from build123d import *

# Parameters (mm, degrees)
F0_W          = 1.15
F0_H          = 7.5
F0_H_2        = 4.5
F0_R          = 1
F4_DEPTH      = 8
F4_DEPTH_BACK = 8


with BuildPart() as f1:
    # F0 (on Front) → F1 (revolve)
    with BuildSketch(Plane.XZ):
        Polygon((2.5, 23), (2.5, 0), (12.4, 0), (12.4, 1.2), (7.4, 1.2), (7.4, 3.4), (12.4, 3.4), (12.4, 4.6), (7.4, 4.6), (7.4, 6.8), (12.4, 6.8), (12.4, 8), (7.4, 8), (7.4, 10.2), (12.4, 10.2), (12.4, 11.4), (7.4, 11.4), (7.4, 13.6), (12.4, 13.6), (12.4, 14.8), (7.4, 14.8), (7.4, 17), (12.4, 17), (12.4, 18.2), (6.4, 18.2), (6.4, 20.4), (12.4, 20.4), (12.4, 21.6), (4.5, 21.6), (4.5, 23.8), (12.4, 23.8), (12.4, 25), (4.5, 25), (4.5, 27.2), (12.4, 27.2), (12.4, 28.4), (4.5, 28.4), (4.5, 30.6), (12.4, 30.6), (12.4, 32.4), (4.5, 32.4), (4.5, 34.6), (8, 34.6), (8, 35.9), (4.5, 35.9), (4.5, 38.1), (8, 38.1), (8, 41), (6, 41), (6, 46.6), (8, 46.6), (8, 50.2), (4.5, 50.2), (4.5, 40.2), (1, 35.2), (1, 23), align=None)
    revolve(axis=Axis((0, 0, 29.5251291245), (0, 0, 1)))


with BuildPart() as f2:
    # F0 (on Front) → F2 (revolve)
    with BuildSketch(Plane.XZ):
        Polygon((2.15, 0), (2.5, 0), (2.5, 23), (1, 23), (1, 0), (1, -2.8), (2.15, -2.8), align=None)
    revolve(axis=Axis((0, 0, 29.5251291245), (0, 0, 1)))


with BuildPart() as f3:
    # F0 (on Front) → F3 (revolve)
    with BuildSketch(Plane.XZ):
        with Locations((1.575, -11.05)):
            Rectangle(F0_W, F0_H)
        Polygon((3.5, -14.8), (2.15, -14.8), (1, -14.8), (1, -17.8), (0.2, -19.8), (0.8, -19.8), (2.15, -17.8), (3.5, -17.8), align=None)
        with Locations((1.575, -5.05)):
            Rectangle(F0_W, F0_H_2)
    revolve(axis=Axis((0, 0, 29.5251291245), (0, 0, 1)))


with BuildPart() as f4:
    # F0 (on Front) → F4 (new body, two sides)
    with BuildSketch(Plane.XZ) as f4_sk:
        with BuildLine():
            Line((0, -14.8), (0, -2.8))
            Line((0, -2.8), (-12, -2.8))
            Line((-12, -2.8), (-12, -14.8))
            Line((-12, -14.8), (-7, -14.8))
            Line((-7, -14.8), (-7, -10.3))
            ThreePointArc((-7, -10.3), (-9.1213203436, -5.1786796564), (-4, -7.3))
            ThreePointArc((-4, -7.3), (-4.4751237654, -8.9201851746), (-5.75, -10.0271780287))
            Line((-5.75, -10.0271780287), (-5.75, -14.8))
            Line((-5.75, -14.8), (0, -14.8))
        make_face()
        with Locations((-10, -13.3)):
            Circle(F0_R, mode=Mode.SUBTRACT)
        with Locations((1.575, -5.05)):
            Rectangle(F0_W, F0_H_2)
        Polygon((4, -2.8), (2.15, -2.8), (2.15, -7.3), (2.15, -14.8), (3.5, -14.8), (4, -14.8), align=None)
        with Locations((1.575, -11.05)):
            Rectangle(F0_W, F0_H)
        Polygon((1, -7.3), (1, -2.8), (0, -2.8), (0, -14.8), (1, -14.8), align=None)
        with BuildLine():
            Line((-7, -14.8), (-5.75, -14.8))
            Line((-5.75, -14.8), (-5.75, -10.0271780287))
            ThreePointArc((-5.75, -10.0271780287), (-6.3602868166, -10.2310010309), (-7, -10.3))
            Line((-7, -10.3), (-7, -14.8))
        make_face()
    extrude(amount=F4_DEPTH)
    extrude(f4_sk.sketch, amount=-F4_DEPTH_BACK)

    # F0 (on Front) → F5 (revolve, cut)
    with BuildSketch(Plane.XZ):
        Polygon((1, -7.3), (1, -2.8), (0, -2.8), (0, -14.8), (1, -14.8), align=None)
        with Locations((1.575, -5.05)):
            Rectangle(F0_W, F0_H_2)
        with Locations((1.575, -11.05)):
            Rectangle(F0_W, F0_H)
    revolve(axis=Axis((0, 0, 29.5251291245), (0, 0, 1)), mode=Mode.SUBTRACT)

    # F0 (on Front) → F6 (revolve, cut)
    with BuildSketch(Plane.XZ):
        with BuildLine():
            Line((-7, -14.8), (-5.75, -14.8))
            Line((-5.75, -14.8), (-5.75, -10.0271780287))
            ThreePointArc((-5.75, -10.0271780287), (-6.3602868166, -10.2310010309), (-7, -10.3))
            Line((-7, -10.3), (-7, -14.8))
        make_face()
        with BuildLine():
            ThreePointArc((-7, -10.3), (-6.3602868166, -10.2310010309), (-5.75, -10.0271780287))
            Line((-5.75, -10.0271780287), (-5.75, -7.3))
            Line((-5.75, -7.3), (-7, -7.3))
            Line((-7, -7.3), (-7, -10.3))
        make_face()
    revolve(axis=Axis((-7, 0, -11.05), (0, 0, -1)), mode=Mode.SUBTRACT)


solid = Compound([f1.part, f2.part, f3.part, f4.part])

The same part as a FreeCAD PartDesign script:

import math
import FreeCAD as App
import Part
import Sketcher

V = App.Vector


def add_polygon(sketch, points):
    """Adds a closed chain of lines whose ends are joined by coincident constraints."""
    first, n = sketch.GeometryCount, len(points)
    for a, b in zip(points, points[1:] + points[:1]):
        sketch.addGeometry(Part.LineSegment(App.Vector(*a, 0), App.Vector(*b, 0)), False)
    for i in range(n):
        sketch.addConstraint(Sketcher.Constraint("Coincident", first + i, 2, first + (i + 1) % n, 1))

doc = App.newDocument("Part")
params = doc.addObject("Spreadsheet::Sheet", "Params")
for row, (alias, value) in enumerate([
    ("sketch1_width", "5 mm"),
    ("sketch1_width2", "6 mm"),
    ("sketch1_width3", "2 mm"),
    ("sketch1_height", "23 mm"),
    ("sketch1_height2", "10 mm"),
    ("revolution_angle", "360 deg"),
    ("sketch2_height", "23 mm"),
    ("sketch2_width", "1.5 mm"),
    ("sketch2_height2", "25.8 mm"),
    ("sketch2_width2", "0.35 mm"),
    ("revolution2_angle", "360 deg"),
    ("sketch3_height", "3 mm"),
    ("sketch3_height2", "12 mm"),
    ("sketch3_width", "0.6 mm"),
    ("sketch3_width2", "1.35 mm"),
    ("sketch3_width3", "1.15 mm"),
    ("revolution3_angle", "360 deg"),
    ("sketch4_diameter", "2 mm"),
    ("sketch4_radius", "3 mm"),
    ("sketch4_width", "16 mm"),
    ("sketch4_height", "12 mm"),
    ("pad1_length", "8 mm"),
    ("pad1_length2", "8 mm"),
    ("sketch5_height", "12 mm"),
    ("sketch5_width", "2.15 mm"),
    ("groove_angle", "360 deg"),
    ("sketch6_height", "7.5 mm"),
    ("sketch6_width", "1.25 mm"),
    ("groove2_angle", "360 deg"),
], start=1):
    params.set(f"A{row}", alias)
    params.set(f"B{row}", "=" + value)
    params.setAlias(f"B{row}", alias)

body = doc.addObject("PartDesign::Body", "Body")

sketch1 = doc.addObject("Sketcher::SketchObject", "Sketch")
body.addObject(sketch1)
sketch1.AttachmentSupport = (doc.XZ_Plane, [""])
sketch1.MapMode = "FlatFace"
add_polygon(sketch1, [(2.5, 23), (2.5, 0), (12.4, 0), (12.4, 1.2), (7.4, 1.2), (7.4, 3.4), (12.4, 3.4), (12.4, 4.6), (7.4, 4.6), (7.4, 6.8), (12.4, 6.8), (12.4, 8), (7.4, 8), (7.4, 10.2), (12.4, 10.2), (12.4, 11.4), (7.4, 11.4), (7.4, 13.6), (12.4, 13.6), (12.4, 14.8), (7.4, 14.8), (7.4, 17), (12.4, 17), (12.4, 18.2), (6.4, 18.2), (6.4, 20.4), (12.4, 20.4), (12.4, 21.6), (4.5, 21.6), (4.5, 23.8), (12.4, 23.8), (12.4, 25), (4.5, 25), (4.5, 27.2), (12.4, 27.2), (12.4, 28.4), (4.5, 28.4), (4.5, 30.6), (12.4, 30.6), (12.4, 32.4), (4.5, 32.4), (4.5, 34.6), (8, 34.6), (8, 35.9), (4.5, 35.9), (4.5, 38.1), (8, 38.1), (8, 41), (6, 41), (6, 46.6), (8, 46.6), (8, 50.2), (4.5, 50.2), (4.5, 40.2), (1, 35.2), (1, 23)])
sketch1.addConstraint([
    Sketcher.Constraint("Vertical", 0),
    Sketcher.Constraint("Horizontal", 1),
    Sketcher.Constraint("Vertical", 2),
    Sketcher.Constraint("Horizontal", 3),
    Sketcher.Constraint("Vertical", 4),
    Sketcher.Constraint("Horizontal", 5),
    Sketcher.Constraint("Vertical", 6),
    Sketcher.Constraint("Horizontal", 7),
    Sketcher.Constraint("Vertical", 8),
    Sketcher.Constraint("Horizontal", 9),
    Sketcher.Constraint("Vertical", 10),
    Sketcher.Constraint("Horizontal", 11),
    Sketcher.Constraint("Vertical", 12),
    Sketcher.Constraint("Horizontal", 13),
    Sketcher.Constraint("Vertical", 14),
    Sketcher.Constraint("Horizontal", 15),
    Sketcher.Constraint("Vertical", 16),
    Sketcher.Constraint("Horizontal", 17),
    Sketcher.Constraint("Vertical", 18),
    Sketcher.Constraint("Horizontal", 19),
    Sketcher.Constraint("Vertical", 20),
    Sketcher.Constraint("Horizontal", 21),
    Sketcher.Constraint("Vertical", 22),
    Sketcher.Constraint("Horizontal", 23),
    Sketcher.Constraint("Vertical", 24),
    Sketcher.Constraint("Horizontal", 25),
    Sketcher.Constraint("Vertical", 26),
    Sketcher.Constraint("Horizontal", 27),
    Sketcher.Constraint("Vertical", 28),
    Sketcher.Constraint("Horizontal", 29),
    Sketcher.Constraint("Vertical", 30),
    Sketcher.Constraint("Horizontal", 31),
    Sketcher.Constraint("Vertical", 32),
    Sketcher.Constraint("Horizontal", 33),
    Sketcher.Constraint("Vertical", 34),
    Sketcher.Constraint("Horizontal", 35),
    Sketcher.Constraint("Vertical", 36),
    Sketcher.Constraint("Horizontal", 37),
    Sketcher.Constraint("Vertical", 38),
    Sketcher.Constraint("Horizontal", 39),
    Sketcher.Constraint("Vertical", 40),
    Sketcher.Constraint("Horizontal", 41),
    Sketcher.Constraint("Vertical", 42),
    Sketcher.Constraint("Horizontal", 43),
    Sketcher.Constraint("Vertical", 44),
    Sketcher.Constraint("Horizontal", 45),
    Sketcher.Constraint("Vertical", 46),
    Sketcher.Constraint("Horizontal", 47),
    Sketcher.Constraint("Vertical", 48),
    Sketcher.Constraint("Horizontal", 49),
    Sketcher.Constraint("Vertical", 50),
    Sketcher.Constraint("Horizontal", 51),
    Sketcher.Constraint("Vertical", 52),
    Sketcher.Constraint("Vertical", 54),
    Sketcher.Constraint("Horizontal", 55),
    Sketcher.Constraint("PointOnObject", 0, 2, -1),
    Sketcher.Constraint("Vertical", 2, 2, 5, 2),
    Sketcher.Constraint("Vertical", 4, 2, 7, 2),
    Sketcher.Constraint("Vertical", 6, 2, 9, 2),
    Sketcher.Constraint("Vertical", 8, 2, 11, 2),
    Sketcher.Constraint("Vertical", 10, 2, 13, 2),
    Sketcher.Constraint("Vertical", 12, 2, 15, 2),
    Sketcher.Constraint("Vertical", 14, 2, 17, 2),
    Sketcher.Constraint("Vertical", 16, 2, 19, 2),
    Sketcher.Constraint("Vertical", 18, 2, 21, 2),
    Sketcher.Constraint("Vertical", 22, 2, 25, 2),
    Sketcher.Constraint("Vertical", 26, 2, 29, 2),
    Sketcher.Constraint("Vertical", 28, 2, 31, 2),
    Sketcher.Constraint("Vertical", 30, 2, 33, 2),
    Sketcher.Constraint("Vertical", 32, 2, 35, 2),
    Sketcher.Constraint("Vertical", 34, 2, 37, 2),
    Sketcher.Constraint("Vertical", 36, 2, 39, 2),
    Sketcher.Constraint("Vertical", 40, 2, 43, 2),
    Sketcher.Constraint("Vertical", 42, 2, 45, 2),
    Sketcher.Constraint("Vertical", 46, 2, 49, 2),
    Sketcher.Constraint("Vertical", 44, 2, 51, 2),
    Sketcher.Constraint("Equal", 2, 6),
    Sketcher.Constraint("Equal", 4, 8),
    Sketcher.Constraint("Equal", 6, 10),
    Sketcher.Constraint("Equal", 8, 12),
    Sketcher.Constraint("Equal", 10, 14),
    Sketcher.Constraint("Equal", 12, 16),
    Sketcher.Constraint("Equal", 14, 18),
    Sketcher.Constraint("Equal", 16, 20),
    Sketcher.Constraint("Equal", 18, 22),
    Sketcher.Constraint("Equal", 20, 24),
    Sketcher.Constraint("Equal", 22, 26),
    Sketcher.Constraint("Equal", 24, 28),
    Sketcher.Constraint("Equal", 26, 30),
    Sketcher.Constraint("Equal", 28, 32),
    Sketcher.Constraint("Equal", 30, 34),
    Sketcher.Constraint("Equal", 32, 36),
    Sketcher.Constraint("Equal", 36, 40),
    Sketcher.Constraint("Equal", 40, 44),
    Sketcher.Constraint("DistanceX", 3, 2, 3, 1, 5.0),
    Sketcher.Constraint("DistanceX", 23, 2, 23, 1, 6.0),
    Sketcher.Constraint("DistanceX", 47, 2, 47, 1, 2.0),
    Sketcher.Constraint("DistanceY", 0, 2, 0, 1, 23.0),
    Sketcher.Constraint("DistanceY", 52, 2, 52, 1, 10.0),
    Sketcher.Constraint("DistanceX", 1, 1, 1, 2, 9.9),
    Sketcher.Constraint("DistanceX", 27, 2, 27, 1, 7.9),
    Sketcher.Constraint("DistanceX", 41, 1, 41, 2, 3.5),
    Sketcher.Constraint("DistanceX", 55, 1, 55, 2, 1.5),
    Sketcher.Constraint("DistanceY", 2, 1, 2, 2, 1.2),
    Sketcher.Constraint("DistanceY", 4, 1, 4, 2, 2.2),
    Sketcher.Constraint("DistanceY", 38, 1, 38, 2, 1.8),
    Sketcher.Constraint("DistanceY", 42, 1, 42, 2, 1.3),
    Sketcher.Constraint("DistanceY", 46, 1, 46, 2, 2.9),
    Sketcher.Constraint("DistanceY", 48, 1, 48, 2, 5.6),
    Sketcher.Constraint("DistanceY", 50, 1, 50, 2, 3.6),
    Sketcher.Constraint("DistanceY", 54, 2, 54, 1, 12.2),
    Sketcher.Constraint("DistanceX", -1, 1, 41, 2, 8.0),
])
sketch1.setExpression("Constraints[150]", "Params.sketch1_width")
sketch1.setExpression("Constraints[151]", "Params.sketch1_width2")
sketch1.setExpression("Constraints[152]", "Params.sketch1_width3")
sketch1.setExpression("Constraints[153]", "Params.sketch1_height")
sketch1.setExpression("Constraints[154]", "Params.sketch1_height2")
revolution = doc.addObject("PartDesign::Revolution", "Revolution")
body.addObject(revolution)
revolution.Profile = sketch1
revolution.ReferenceAxis = (sketch1, ["V_Axis"])
revolution.setExpression("Angle", "Params.revolution_angle")
body2 = doc.addObject("PartDesign::Body", "Body001")

sketch2 = doc.addObject("Sketcher::SketchObject", "Sketch001")
body2.addObject(sketch2)
sketch2.AttachmentSupport = (doc.getObject("XZ_Plane001"), [""])
sketch2.MapMode = "FlatFace"
add_polygon(sketch2, [(2.15, 0), (2.5, 0), (2.5, 23), (1, 23), (1, -2.8), (2.15, -2.8)])
sketch2.addConstraint([
    Sketcher.Constraint("Horizontal", 0),
    Sketcher.Constraint("Vertical", 1),
    Sketcher.Constraint("Horizontal", 2),
    Sketcher.Constraint("Vertical", 3),
    Sketcher.Constraint("Horizontal", 4),
    Sketcher.Constraint("Vertical", 5),
    Sketcher.Constraint("PointOnObject", 0, 2, -1),
    Sketcher.Constraint("DistanceY", 1, 1, 1, 2, 23.0),
    Sketcher.Constraint("DistanceX", 2, 2, 2, 1, 1.5),
    Sketcher.Constraint("DistanceY", 3, 2, 3, 1, 25.8),
    Sketcher.Constraint("DistanceX", -1, 1, 2, 2, 1.0),
    Sketcher.Constraint("DistanceX", 0, 1, 0, 2, 0.35),
])
sketch2.setExpression("Constraints[13]", "Params.sketch2_height")
sketch2.setExpression("Constraints[14]", "Params.sketch2_width")
sketch2.setExpression("Constraints[15]", "Params.sketch2_height2")
sketch2.setExpression("Constraints[17]", "Params.sketch2_width2")
revolution2 = doc.addObject("PartDesign::Revolution", "Revolution001")
body2.addObject(revolution2)
revolution2.Profile = sketch2
revolution2.ReferenceAxis = (sketch2, ["V_Axis"])
revolution2.setExpression("Angle", "Params.revolution2_angle")
body3 = doc.addObject("PartDesign::Body", "Body002")

sketch3 = doc.addObject("Sketcher::SketchObject", "Sketch002")
body3.addObject(sketch3)
sketch3.AttachmentSupport = (doc.getObject("XZ_Plane002"), [""])
sketch3.MapMode = "FlatFace"
add_polygon(sketch3, [(1, -17.8), (0.2, -19.8), (0.8, -19.8), (2.1, -17.8), (3.5, -17.8), (3.5, -14.8), (2.1, -14.8), (2.1, -2.8), (1, -2.8)])
sketch3.addConstraint([
    Sketcher.Constraint("Horizontal", 1),
    Sketcher.Constraint("Horizontal", 3),
    Sketcher.Constraint("Vertical", 4),
    Sketcher.Constraint("Horizontal", 5),
    Sketcher.Constraint("Vertical", 6),
    Sketcher.Constraint("Horizontal", 7),
    Sketcher.Constraint("Vertical", 8),
    Sketcher.Constraint("Horizontal", 3, 2, 8, 2),
    Sketcher.Constraint("Vertical", 2, 2, 5, 2),
    Sketcher.Constraint("DistanceY", 4, 1, 4, 2, 3.0),
    Sketcher.Constraint("DistanceY", 6, 1, 6, 2, 12.0),
    Sketcher.Constraint("DistanceX", 1, 1, 1, 2, 0.6),
    Sketcher.Constraint("DistanceX", -1, 1, 7, 2, 1.0),
    Sketcher.Constraint("DistanceY", 1, 2, 2, 2, 2.0),
    Sketcher.Constraint("DistanceX", 3, 1, 3, 2, 1.35),
    Sketcher.Constraint("DistanceX", 7, 2, 7, 1, 1.15),
    Sketcher.Constraint("DistanceX", -1, 1, 0, 2, 0.2),
    Sketcher.Constraint("DistanceY", 0, 2, -1, 1, 19.8),
])
sketch3.setExpression("Constraints[18]", "Params.sketch3_height")
sketch3.setExpression("Constraints[19]", "Params.sketch3_height2")
sketch3.setExpression("Constraints[20]", "Params.sketch3_width")
sketch3.setExpression("Constraints[23]", "Params.sketch3_width2")
sketch3.setExpression("Constraints[24]", "Params.sketch3_width3")
revolution3 = doc.addObject("PartDesign::Revolution", "Revolution002")
body3.addObject(revolution3)
revolution3.Profile = sketch3
revolution3.ReferenceAxis = (sketch3, ["V_Axis"])
revolution3.setExpression("Angle", "Params.revolution3_angle")
body4 = doc.addObject("PartDesign::Body", "Body003")

sketch4 = doc.addObject("Sketcher::SketchObject", "Sketch003")
body4.addObject(sketch4)
sketch4.AttachmentSupport = (doc.getObject("XZ_Plane003"), [""])
sketch4.MapMode = "FlatFace"
add_polygon(sketch4, [(4, -14.8), (4, -2.8), (-12, -2.8), (-12, -14.8)])
sketch4.addGeometry(Part.ArcOfCircle(Part.Circle(V(-7, -7.3, 0), V(0, 0, 1), 3), math.radians(0), math.radians(270)), False)
sketch4.addGeometry(Part.ArcOfCircle(Part.Circle(V(-7, -7.3, 0), V(0, 0, 1), 3), math.radians(-65), math.radians(0)), False)
sketch4.addGeometry(Part.ArcOfCircle(Part.Circle(V(-7, -7.3, 0), V(0, 0, 1), 3), math.radians(-90), math.radians(-65)), False)
sketch4.addGeometry(Part.Circle(V(-10, -13.3, 0), V(0, 0, 1), 1), False)
sketch4.addConstraint([
    Sketcher.Constraint("Tangent", 4, 1, 5, 2),
    Sketcher.Constraint("Tangent", 5, 1, 6, 2),
    Sketcher.Constraint("Tangent", 6, 1, 4, 2),
    Sketcher.Constraint("Vertical", 0),
    Sketcher.Constraint("Horizontal", 1),
    Sketcher.Constraint("Vertical", 2),
    Sketcher.Constraint("Horizontal", 3),
    Sketcher.Constraint("Horizontal", 6, 3, 4, 1),
    Sketcher.Constraint("Vertical", 5, 3, 6, 1),
    Sketcher.Constraint("Diameter", 7, 2.0),
    Sketcher.Constraint("Radius", 4, 3.0),
    Sketcher.Constraint("DistanceX", 1, 2, 1, 1, 16.0),
    Sketcher.Constraint("DistanceY", 0, 1, 0, 2, 12.0),
    Sketcher.Constraint("DistanceX", 4, 3, -1, 1, 7.0),
    Sketcher.Constraint("DistanceX", 7, 3, -1, 1, 10.0),
    Sketcher.Constraint("DistanceX", -1, 1, 0, 2, 4.0),
    Sketcher.Constraint("DistanceY", 7, 3, 4, 3, 6.0),
    Sketcher.Constraint("DistanceY", 4, 3, -1, 1, 7.3),
    Sketcher.Constraint("DistanceY", 0, 2, -1, 1, 2.8),
    Sketcher.Constraint("DistanceX", 5, 1, -1, 1, 5.75),
])
sketch4.setExpression("Constraints[13]", "Params.sketch4_diameter")
sketch4.setExpression("Constraints[14]", "Params.sketch4_radius")
sketch4.setExpression("Constraints[15]", "Params.sketch4_width")
sketch4.setExpression("Constraints[16]", "Params.sketch4_height")
pad1 = doc.addObject("PartDesign::Pad", "Pad")
body4.addObject(pad1)
pad1.Profile = sketch4
pad1.Type = "TwoLengths"
pad1.setExpression("Length", "Params.pad1_length")
pad1.setExpression("Length2", "Params.pad1_length2")

sketch5 = doc.addObject("Sketcher::SketchObject", "Sketch004")
body4.addObject(sketch5)
sketch5.AttachmentSupport = (doc.getObject("XZ_Plane003"), [""])
sketch5.MapMode = "FlatFace"
add_polygon(sketch5, [(0, -2.8), (0, -14.8), (2.1, -14.8), (2.1, -2.8)])
sketch5.addConstraint([
    Sketcher.Constraint("Vertical", 0),
    Sketcher.Constraint("Horizontal", 1),
    Sketcher.Constraint("Vertical", 2),
    Sketcher.Constraint("Horizontal", 3),
    Sketcher.Constraint("PointOnObject", 0, 2, -2),
    Sketcher.Constraint("DistanceY", 0, 2, 0, 1, 12.0),
    Sketcher.Constraint("DistanceX", 1, 1, 1, 2, 2.15),
    Sketcher.Constraint("DistanceY", 0, 2, -1, 1, 14.8),
])
sketch5.setExpression("Constraints[9]", "Params.sketch5_height")
sketch5.setExpression("Constraints[10]", "Params.sketch5_width")
groove = doc.addObject("PartDesign::Groove", "Groove")
body4.addObject(groove)
groove.Profile = sketch5
groove.ReferenceAxis = (sketch5, ["V_Axis"])
groove.setExpression("Angle", "Params.groove_angle")

sketch6 = doc.addObject("Sketcher::SketchObject", "Sketch005")
body4.addObject(sketch6)
sketch6.AttachmentSupport = (doc.getObject("XZ_Plane003"), [""])
sketch6.MapMode = "FlatFace"
add_polygon(sketch6, [(-7, -14.8), (-5.8, -14.8), (-5.8, -7.3), (-7, -7.3)])
sketch6.addGeometry(Part.LineSegment(V(-7, -7.3, 0), V(-7, -14.8, 0)), True)
sketch6.addConstraint([
    Sketcher.Constraint("Horizontal", 0),
    Sketcher.Constraint("Vertical", 1),
    Sketcher.Constraint("Horizontal", 2),
    Sketcher.Constraint("Vertical", 3),
    Sketcher.Constraint("Vertical", 4),
    Sketcher.Constraint("Coincident", 4, 1, 2, 2),
    Sketcher.Constraint("Horizontal", 0, 2, 4, 2),
    Sketcher.Constraint("DistanceY", 1, 1, 1, 2, 7.5),
    Sketcher.Constraint("DistanceX", 2, 2, -1, 1, 7.0),
    Sketcher.Constraint("DistanceX", 0, 1, 0, 2, 1.25),
    Sketcher.Constraint("DistanceY", 0, 2, -1, 1, 14.8),
])
sketch6.setExpression("Constraints[11]", "Params.sketch6_height")
sketch6.setExpression("Constraints[13]", "Params.sketch6_width")
groove2 = doc.addObject("PartDesign::Groove", "Groove001")
body4.addObject(groove2)
groove2.Profile = sketch6
groove2.ReferenceAxis = (sketch6, ["Axis0"])
groove2.setExpression("Angle", "Params.groove2_angle")

doc.recompute()
